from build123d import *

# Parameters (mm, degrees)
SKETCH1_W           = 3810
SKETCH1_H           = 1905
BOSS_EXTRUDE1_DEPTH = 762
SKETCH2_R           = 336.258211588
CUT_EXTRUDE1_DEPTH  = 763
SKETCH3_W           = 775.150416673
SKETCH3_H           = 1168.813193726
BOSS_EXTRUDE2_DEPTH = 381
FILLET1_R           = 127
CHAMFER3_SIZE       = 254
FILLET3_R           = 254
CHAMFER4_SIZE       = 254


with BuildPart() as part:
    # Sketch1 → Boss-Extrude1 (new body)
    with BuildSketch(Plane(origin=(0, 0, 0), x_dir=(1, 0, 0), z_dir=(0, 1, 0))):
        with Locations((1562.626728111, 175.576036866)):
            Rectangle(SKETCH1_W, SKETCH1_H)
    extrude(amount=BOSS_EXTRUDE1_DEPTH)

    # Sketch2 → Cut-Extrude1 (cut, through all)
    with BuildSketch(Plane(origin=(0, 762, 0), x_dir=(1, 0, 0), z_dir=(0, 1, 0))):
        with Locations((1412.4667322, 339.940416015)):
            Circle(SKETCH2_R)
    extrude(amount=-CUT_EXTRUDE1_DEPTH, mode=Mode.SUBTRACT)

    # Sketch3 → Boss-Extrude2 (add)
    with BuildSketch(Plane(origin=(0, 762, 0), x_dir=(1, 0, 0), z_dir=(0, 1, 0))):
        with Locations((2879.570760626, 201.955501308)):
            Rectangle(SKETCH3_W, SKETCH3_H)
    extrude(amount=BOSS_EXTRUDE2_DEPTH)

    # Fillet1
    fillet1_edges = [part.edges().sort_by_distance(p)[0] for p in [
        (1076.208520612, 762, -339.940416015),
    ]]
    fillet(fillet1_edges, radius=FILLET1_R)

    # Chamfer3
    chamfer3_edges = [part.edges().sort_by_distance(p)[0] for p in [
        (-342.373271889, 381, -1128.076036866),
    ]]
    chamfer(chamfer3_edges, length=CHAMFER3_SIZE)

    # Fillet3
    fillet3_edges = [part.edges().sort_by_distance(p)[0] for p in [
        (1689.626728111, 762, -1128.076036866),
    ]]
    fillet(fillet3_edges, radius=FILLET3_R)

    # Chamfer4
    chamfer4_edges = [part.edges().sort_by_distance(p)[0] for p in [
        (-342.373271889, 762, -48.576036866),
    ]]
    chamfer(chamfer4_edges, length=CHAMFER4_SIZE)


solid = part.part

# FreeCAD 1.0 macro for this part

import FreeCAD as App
import Part
import Sketcher

V = App.Vector
Q = App.Units.Quantity


def edges_at(feature, points):
    """Names of the edges that pass closest to the given points."""
    edges = feature.Shape.Edges
    near = lambda p: min(range(len(edges)), key=lambda i: edges[i].distToShape(Part.Vertex(*p))[0])
    return sorted({f"Edge{near(p) + 1}" for p in points})

doc = App.newDocument("Part")
body = doc.addObject("PartDesign::Body", "Body")

sketch1 = body.newObject("Sketcher::SketchObject", "Sketch")
sketch1.AttachmentSupport = (doc.getObject("XZ_Plane"), [""])
sketch1.MapMode = "FlatFace"
sketch1.addGeometry(Part.LineSegment(V(-342.373272, -1128.076037, 0), V(-342.373272, 776.923963, 0)), False)
sketch1.addGeometry(Part.LineSegment(V(-342.373272, 776.923963, 0), V(3467.626728, 776.923963, 0)), False)
sketch1.addGeometry(Part.LineSegment(V(3467.626728, 776.923963, 0), V(3467.626728, -1128.076037, 0)), False)
sketch1.addGeometry(Part.LineSegment(V(3467.626728, -1128.076037, 0), V(-342.373272, -1128.076037, 0)), False)
sketch1.addConstraint(Sketcher.Constraint("Coincident", 0, 2, 1, 1))
sketch1.addConstraint(Sketcher.Constraint("Coincident", 1, 2, 2, 1))
sketch1.addConstraint(Sketcher.Constraint("Coincident", 2, 2, 3, 1))
sketch1.addConstraint(Sketcher.Constraint("Coincident", 3, 2, 0, 1))
sketch1.addConstraint(Sketcher.Constraint("Vertical", 0))
sketch1.addConstraint(Sketcher.Constraint("Horizontal", 1))
sketch1.addConstraint(Sketcher.Constraint("Vertical", 2))
sketch1.addConstraint(Sketcher.Constraint("Horizontal", 3))
sketch1.addConstraint(Sketcher.Constraint("DistanceX", 1, 1, 1, 2, Q("150 in")))
sketch1.addConstraint(Sketcher.Constraint("DistanceY", 0, 1, 0, 2, Q("75 in")))
sketch1.addConstraint(Sketcher.Constraint("DistanceX", 0, 2, -1, 1, Q("342.373272 mm")))
sketch1.addConstraint(Sketcher.Constraint("DistanceY", -1, 1, 0, 2, Q("776.923963 mm")))
pad1 = body.newObject("PartDesign::Pad", "Pad")
pad1.Profile = sketch1
pad1.Length = Q("30 in")
pad1.Reversed = True

sketch2 = body.newObject("Sketcher::SketchObject", "Sketch001")
sketch2.AttachmentSupport = (doc.getObject("XZ_Plane"), [""])
sketch2.MapMode = "FlatFace"
sketch2.AttachmentOffset = App.Placement(V(0, 0, -30 * 25.4), App.Rotation())
sketch2.addGeometry(Part.Circle(V(1412.466732, -339.940416, 0), V(0, 0, 1), 336.258212), False)
sketch2.addConstraint(Sketcher.Constraint("Diameter", 0, Q("672.516423 mm")))
sketch2.addConstraint(Sketcher.Constraint("DistanceX", -1, 1, 0, 3, Q("1412.466732 mm")))
sketch2.addConstraint(Sketcher.Constraint("DistanceY", 0, 3, -1, 1, Q("339.940416 mm")))
pocket1 = body.newObject("PartDesign::Pocket", "Pocket")
pocket1.Profile = sketch2
pocket1.Type = "ThroughAll"
pocket1.Reversed = True

sketch3 = body.newObject("Sketcher::SketchObject", "Sketch002")
sketch3.AttachmentSupport = (doc.getObject("XZ_Plane"), [""])
sketch3.MapMode = "FlatFace"
sketch3.AttachmentOffset = App.Placement(V(0, 0, -30 * 25.4), App.Rotation())
sketch3.addGeometry(Part.LineSegment(V(2491.995552, -786.362098, 0), V(2491.995552, 382.451096, 0)), False)
sketch3.addGeometry(Part.LineSegment(V(2491.995552, 382.451096, 0), V(3267.145969, 382.451096, 0)), False)
sketch3.addGeometry(Part.LineSegment(V(3267.145969, 382.451096, 0), V(3267.145969, -786.362098, 0)), False)
sketch3.addGeometry(Part.LineSegment(V(3267.145969, -786.362098, 0), V(2491.995552, -786.362098, 0)), False)
sketch3.addConstraint(Sketcher.Constraint("Coincident", 0, 2, 1, 1))
sketch3.addConstraint(Sketcher.Constraint("Coincident", 1, 2, 2, 1))
sketch3.addConstraint(Sketcher.Constraint("Coincident", 2, 2, 3, 1))
sketch3.addConstraint(Sketcher.Constraint("Coincident", 3, 2, 0, 1))
sketch3.addConstraint(Sketcher.Constraint("Vertical", 0))
sketch3.addConstraint(Sketcher.Constraint("Horizontal", 1))
sketch3.addConstraint(Sketcher.Constraint("Vertical", 2))
sketch3.addConstraint(Sketcher.Constraint("Horizontal", 3))
sketch3.addConstraint(Sketcher.Constraint("DistanceY", 2, 2, -1, 1, Q("786.362098 mm")))
sketch3.addConstraint(Sketcher.Constraint("DistanceX", 1, 1, 1, 2, Q("775.150417 mm")))
sketch3.addConstraint(Sketcher.Constraint("DistanceY", 0, 1, 0, 2, Q("1168.813194 mm")))
sketch3.addConstraint(Sketcher.Constraint("DistanceX", -1, 1, 1, 2, Q("3267.145969 mm")))
pad2 = body.newObject("PartDesign::Pad", "Pad001")
pad2.Profile = sketch3
pad2.Length = Q("15 in")
pad2.Reversed = True
doc.recompute()

fillet = body.newObject("PartDesign::Fillet", "Fillet")
fillet.Base = (pad2, edges_at(pad2, [(1076.209, 762, -339.94)]))
fillet.Radius = Q("5 in")
doc.recompute()

chamfer = body.newObject("PartDesign::Chamfer", "Chamfer")
chamfer.Base = (fillet, edges_at(fillet, [(-342.373, 381, -1128.076)]))
chamfer.Size = Q("10 in")
doc.recompute()

fillet2 = body.newObject("PartDesign::Fillet", "Fillet001")
fillet2.Base = (chamfer, edges_at(chamfer, [(1689.627, 762, -1128.076)]))
fillet2.Radius = Q("10 in")
doc.recompute()

chamfer2 = body.newObject("PartDesign::Chamfer", "Chamfer001")
chamfer2.Base = (fillet2, edges_at(fillet2, [(-342.373, 762, -48.576)]))
chamfer2.Size = Q("10 in")

doc.recompute()
